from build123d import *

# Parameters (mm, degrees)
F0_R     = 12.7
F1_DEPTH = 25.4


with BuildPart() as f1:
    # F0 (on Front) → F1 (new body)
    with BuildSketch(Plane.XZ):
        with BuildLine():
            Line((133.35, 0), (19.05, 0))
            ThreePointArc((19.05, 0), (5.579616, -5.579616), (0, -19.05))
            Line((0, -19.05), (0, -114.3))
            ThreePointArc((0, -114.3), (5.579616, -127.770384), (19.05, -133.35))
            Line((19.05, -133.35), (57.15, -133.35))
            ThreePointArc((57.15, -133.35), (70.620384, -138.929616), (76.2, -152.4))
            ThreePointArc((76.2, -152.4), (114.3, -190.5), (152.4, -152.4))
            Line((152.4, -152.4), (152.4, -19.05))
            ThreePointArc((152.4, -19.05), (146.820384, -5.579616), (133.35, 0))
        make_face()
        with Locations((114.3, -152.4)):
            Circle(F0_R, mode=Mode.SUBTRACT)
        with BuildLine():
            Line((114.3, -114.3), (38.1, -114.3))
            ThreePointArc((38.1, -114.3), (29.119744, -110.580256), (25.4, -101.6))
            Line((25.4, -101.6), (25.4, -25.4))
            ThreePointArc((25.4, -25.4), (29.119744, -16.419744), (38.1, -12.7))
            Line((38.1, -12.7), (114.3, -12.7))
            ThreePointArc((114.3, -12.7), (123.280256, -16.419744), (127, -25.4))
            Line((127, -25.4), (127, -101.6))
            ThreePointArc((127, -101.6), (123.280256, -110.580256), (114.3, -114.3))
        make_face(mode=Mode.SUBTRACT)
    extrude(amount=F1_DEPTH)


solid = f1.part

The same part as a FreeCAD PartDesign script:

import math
import FreeCAD as App
import Part
import Sketcher
Q = App.Units.Quantity

doc = App.newDocument("Part")
body = doc.addObject("PartDesign::Body", "Body")

# Sketch on XZ plane
sketch1 = body.newObject("Sketcher::SketchObject", "Sketch")
sketch1.AttachmentSupport = (doc.getObject("XZ_Plane"), [""])
sketch1.MapMode = "FlatFace"
sketch1.addGeometry(Part.LineSegment(App.Vector(133, 0, 0), App.Vector(19, 0, 0)), False)
sketch1.addGeometry(Part.ArcOfCircle(Part.Circle(App.Vector(19, -19, 0), App.Vector(0, 0, 1), 19), math.radians(90), math.radians(180)), False)
sketch1.addGeometry(Part.LineSegment(App.Vector(0, -19, 0), App.Vector(0, -114, 0)), False)
sketch1.addGeometry(Part.ArcOfCircle(Part.Circle(App.Vector(19, -114, 0), App.Vector(0, 0, 1), 19), math.radians(-180), math.radians(-90)), False)
sketch1.addGeometry(Part.LineSegment(App.Vector(19, -133, 0), App.Vector(57, -133, 0)), False)
sketch1.addGeometry(Part.ArcOfCircle(Part.Circle(App.Vector(57, -152, 0), App.Vector(0, 0, 1), 19), math.radians(0), math.radians(90)), False)
sketch1.addGeometry(Part.ArcOfCircle(Part.Circle(App.Vector(114, -152, 0), App.Vector(0, 0, 1), 38), math.radians(180), math.radians(360)), False)
sketch1.addGeometry(Part.LineSegment(App.Vector(152, -152, 0), App.Vector(152, -19, 0)), False)
sketch1.addGeometry(Part.ArcOfCircle(Part.Circle(App.Vector(133, -19, 0), App.Vector(0, 0, 1), 19), math.radians(0), math.radians(90)), False)
sketch1.addGeometry(Part.Circle(App.Vector(114, -152, 0), App.Vector(0, 0, 1), 13), False)
sketch1.addGeometry(Part.ArcOfCircle(Part.Circle(App.Vector(114, -102, 0), App.Vector(0, 0, 1), 13), math.radians(-90), math.radians(0)), False)
sketch1.addGeometry(Part.LineSegment(App.Vector(114, -114, 0), App.Vector(38, -114, 0)), False)
sketch1.addGeometry(Part.ArcOfCircle(Part.Circle(App.Vector(38, -102, 0), App.Vector(0, 0, 1), 13), math.radians(-180), math.radians(-90)), False)
sketch1.addGeometry(Part.LineSegment(App.Vector(25, -102, 0), App.Vector(25, -25, 0)), False)
sketch1.addGeometry(Part.ArcOfCircle(Part.Circle(App.Vector(38, -25, 0), App.Vector(0, 0, 1), 13), math.radians(90), math.radians(180)), False)
sketch1.addGeometry(Part.LineSegment(App.Vector(38, -13, 0), App.Vector(114, -13, 0)), False)
sketch1.addGeometry(Part.ArcOfCircle(Part.Circle(App.Vector(114, -25, 0), App.Vector(0, 0, 1), 13), math.radians(0), math.radians(90)), False)
sketch1.addGeometry(Part.LineSegment(App.Vector(127, -25, 0), App.Vector(127, -102, 0)), False)
sketch1.addConstraint(Sketcher.Constraint("Tangent", 0, 2, 1, 1))
sketch1.addConstraint(Sketcher.Constraint("Tangent", 1, 2, 2, 1))
sketch1.addConstraint(Sketcher.Constraint("Tangent", 2, 2, 3, 1))
sketch1.addConstraint(Sketcher.Constraint("Tangent", 3, 2, 4, 1))
sketch1.addConstraint(Sketcher.Constraint("Tangent", 4, 2, 5, 2))
sketch1.addConstraint(Sketcher.Constraint("Tangent", 5, 1, 6, 1))
sketch1.addConstraint(Sketcher.Constraint("Tangent", 6, 2, 7, 1))
sketch1.addConstraint(Sketcher.Constraint("Tangent", 7, 2, 8, 1))
sketch1.addConstraint(Sketcher.Constraint("Tangent", 8, 2, 0, 1))
sketch1.addConstraint(Sketcher.Constraint("Tangent", 10, 1, 11, 1))
sketch1.addConstraint(Sketcher.Constraint("Tangent", 11, 2, 12, 2))
sketch1.addConstraint(Sketcher.Constraint("Tangent", 12, 1, 13, 1))
sketch1.addConstraint(Sketcher.Constraint("Tangent", 13, 2, 14, 2))
sketch1.addConstraint(Sketcher.Constraint("Tangent", 14, 1, 15, 1))
sketch1.addConstraint(Sketcher.Constraint("Tangent", 15, 2, 16, 2))
sketch1.addConstraint(Sketcher.Constraint("Tangent", 16, 1, 17, 1))
sketch1.addConstraint(Sketcher.Constraint("Tangent", 17, 2, 10, 2))
sketch1.addConstraint(Sketcher.Constraint("Horizontal", 0))
sketch1.addConstraint(Sketcher.Constraint("Vertical", 2))
sketch1.addConstraint(Sketcher.Constraint("Horizontal", 4))
sketch1.addConstraint(Sketcher.Constraint("Vertical", 7))
sketch1.addConstraint(Sketcher.Constraint("Horizontal", 11))
sketch1.addConstraint(Sketcher.Constraint("Vertical", 13))
sketch1.addConstraint(Sketcher.Constraint("Horizontal", 15))
sketch1.addConstraint(Sketcher.Constraint("Vertical", 17))
sketch1.addConstraint(Sketcher.Constraint("Coincident", 9, 3, 6, 3))
sketch1.addConstraint(Sketcher.Constraint("Equal", 1, 3))
sketch1.addConstraint(Sketcher.Constraint("Equal", 3, 5))
sketch1.addConstraint(Sketcher.Constraint("Equal", 5, 8))
sketch1.addConstraint(Sketcher.Constraint("Equal", 9, 10))
sketch1.addConstraint(Sketcher.Constraint("Equal", 10, 12))
sketch1.addConstraint(Sketcher.Constraint("Equal", 12, 14))
sketch1.addConstraint(Sketcher.Constraint("Equal", 14, 16))
sketch1.addConstraint(Sketcher.Constraint("PointOnObject", 0, 2, -1))
sketch1.addConstraint(Sketcher.Constraint("PointOnObject", 1, 2, -2))
sketch1.addConstraint(Sketcher.Constraint("Horizontal", 5, 3, 6, 3))
sketch1.addConstraint(Sketcher.Constraint("Horizontal", 2, 2, 10, 1))
sketch1.addConstraint(Sketcher.Constraint("Vertical", 9, 3, 10, 3))
sketch1.addConstraint(Sketcher.Constraint("Equal", 15, 13))
sketch1.addConstraint(Sketcher.Constraint("Diameter", 9, Q("1 in")))
sketch1.addConstraint(Sketcher.Constraint("Radius", 6, Q("1.5 in")))
sketch1.addConstraint(Sketcher.Constraint("DistanceX", 11, 2, 11, 1, Q("3 in")))
sketch1.addConstraint(Sketcher.Constraint("Radius", 1, Q("0.75 in")))
sketch1.addConstraint(Sketcher.Constraint("DistanceX", 0, 2, 0, 1, Q("4.5 in")))
sketch1.addConstraint(Sketcher.Constraint("DistanceY", 5, 3, -1, 1, Q("6 in")))
pad1 = body.newObject("PartDesign::Pad", "Pad")
pad1.Profile = sketch1
pad1.Length = Q("1 in")

doc.recompute()
